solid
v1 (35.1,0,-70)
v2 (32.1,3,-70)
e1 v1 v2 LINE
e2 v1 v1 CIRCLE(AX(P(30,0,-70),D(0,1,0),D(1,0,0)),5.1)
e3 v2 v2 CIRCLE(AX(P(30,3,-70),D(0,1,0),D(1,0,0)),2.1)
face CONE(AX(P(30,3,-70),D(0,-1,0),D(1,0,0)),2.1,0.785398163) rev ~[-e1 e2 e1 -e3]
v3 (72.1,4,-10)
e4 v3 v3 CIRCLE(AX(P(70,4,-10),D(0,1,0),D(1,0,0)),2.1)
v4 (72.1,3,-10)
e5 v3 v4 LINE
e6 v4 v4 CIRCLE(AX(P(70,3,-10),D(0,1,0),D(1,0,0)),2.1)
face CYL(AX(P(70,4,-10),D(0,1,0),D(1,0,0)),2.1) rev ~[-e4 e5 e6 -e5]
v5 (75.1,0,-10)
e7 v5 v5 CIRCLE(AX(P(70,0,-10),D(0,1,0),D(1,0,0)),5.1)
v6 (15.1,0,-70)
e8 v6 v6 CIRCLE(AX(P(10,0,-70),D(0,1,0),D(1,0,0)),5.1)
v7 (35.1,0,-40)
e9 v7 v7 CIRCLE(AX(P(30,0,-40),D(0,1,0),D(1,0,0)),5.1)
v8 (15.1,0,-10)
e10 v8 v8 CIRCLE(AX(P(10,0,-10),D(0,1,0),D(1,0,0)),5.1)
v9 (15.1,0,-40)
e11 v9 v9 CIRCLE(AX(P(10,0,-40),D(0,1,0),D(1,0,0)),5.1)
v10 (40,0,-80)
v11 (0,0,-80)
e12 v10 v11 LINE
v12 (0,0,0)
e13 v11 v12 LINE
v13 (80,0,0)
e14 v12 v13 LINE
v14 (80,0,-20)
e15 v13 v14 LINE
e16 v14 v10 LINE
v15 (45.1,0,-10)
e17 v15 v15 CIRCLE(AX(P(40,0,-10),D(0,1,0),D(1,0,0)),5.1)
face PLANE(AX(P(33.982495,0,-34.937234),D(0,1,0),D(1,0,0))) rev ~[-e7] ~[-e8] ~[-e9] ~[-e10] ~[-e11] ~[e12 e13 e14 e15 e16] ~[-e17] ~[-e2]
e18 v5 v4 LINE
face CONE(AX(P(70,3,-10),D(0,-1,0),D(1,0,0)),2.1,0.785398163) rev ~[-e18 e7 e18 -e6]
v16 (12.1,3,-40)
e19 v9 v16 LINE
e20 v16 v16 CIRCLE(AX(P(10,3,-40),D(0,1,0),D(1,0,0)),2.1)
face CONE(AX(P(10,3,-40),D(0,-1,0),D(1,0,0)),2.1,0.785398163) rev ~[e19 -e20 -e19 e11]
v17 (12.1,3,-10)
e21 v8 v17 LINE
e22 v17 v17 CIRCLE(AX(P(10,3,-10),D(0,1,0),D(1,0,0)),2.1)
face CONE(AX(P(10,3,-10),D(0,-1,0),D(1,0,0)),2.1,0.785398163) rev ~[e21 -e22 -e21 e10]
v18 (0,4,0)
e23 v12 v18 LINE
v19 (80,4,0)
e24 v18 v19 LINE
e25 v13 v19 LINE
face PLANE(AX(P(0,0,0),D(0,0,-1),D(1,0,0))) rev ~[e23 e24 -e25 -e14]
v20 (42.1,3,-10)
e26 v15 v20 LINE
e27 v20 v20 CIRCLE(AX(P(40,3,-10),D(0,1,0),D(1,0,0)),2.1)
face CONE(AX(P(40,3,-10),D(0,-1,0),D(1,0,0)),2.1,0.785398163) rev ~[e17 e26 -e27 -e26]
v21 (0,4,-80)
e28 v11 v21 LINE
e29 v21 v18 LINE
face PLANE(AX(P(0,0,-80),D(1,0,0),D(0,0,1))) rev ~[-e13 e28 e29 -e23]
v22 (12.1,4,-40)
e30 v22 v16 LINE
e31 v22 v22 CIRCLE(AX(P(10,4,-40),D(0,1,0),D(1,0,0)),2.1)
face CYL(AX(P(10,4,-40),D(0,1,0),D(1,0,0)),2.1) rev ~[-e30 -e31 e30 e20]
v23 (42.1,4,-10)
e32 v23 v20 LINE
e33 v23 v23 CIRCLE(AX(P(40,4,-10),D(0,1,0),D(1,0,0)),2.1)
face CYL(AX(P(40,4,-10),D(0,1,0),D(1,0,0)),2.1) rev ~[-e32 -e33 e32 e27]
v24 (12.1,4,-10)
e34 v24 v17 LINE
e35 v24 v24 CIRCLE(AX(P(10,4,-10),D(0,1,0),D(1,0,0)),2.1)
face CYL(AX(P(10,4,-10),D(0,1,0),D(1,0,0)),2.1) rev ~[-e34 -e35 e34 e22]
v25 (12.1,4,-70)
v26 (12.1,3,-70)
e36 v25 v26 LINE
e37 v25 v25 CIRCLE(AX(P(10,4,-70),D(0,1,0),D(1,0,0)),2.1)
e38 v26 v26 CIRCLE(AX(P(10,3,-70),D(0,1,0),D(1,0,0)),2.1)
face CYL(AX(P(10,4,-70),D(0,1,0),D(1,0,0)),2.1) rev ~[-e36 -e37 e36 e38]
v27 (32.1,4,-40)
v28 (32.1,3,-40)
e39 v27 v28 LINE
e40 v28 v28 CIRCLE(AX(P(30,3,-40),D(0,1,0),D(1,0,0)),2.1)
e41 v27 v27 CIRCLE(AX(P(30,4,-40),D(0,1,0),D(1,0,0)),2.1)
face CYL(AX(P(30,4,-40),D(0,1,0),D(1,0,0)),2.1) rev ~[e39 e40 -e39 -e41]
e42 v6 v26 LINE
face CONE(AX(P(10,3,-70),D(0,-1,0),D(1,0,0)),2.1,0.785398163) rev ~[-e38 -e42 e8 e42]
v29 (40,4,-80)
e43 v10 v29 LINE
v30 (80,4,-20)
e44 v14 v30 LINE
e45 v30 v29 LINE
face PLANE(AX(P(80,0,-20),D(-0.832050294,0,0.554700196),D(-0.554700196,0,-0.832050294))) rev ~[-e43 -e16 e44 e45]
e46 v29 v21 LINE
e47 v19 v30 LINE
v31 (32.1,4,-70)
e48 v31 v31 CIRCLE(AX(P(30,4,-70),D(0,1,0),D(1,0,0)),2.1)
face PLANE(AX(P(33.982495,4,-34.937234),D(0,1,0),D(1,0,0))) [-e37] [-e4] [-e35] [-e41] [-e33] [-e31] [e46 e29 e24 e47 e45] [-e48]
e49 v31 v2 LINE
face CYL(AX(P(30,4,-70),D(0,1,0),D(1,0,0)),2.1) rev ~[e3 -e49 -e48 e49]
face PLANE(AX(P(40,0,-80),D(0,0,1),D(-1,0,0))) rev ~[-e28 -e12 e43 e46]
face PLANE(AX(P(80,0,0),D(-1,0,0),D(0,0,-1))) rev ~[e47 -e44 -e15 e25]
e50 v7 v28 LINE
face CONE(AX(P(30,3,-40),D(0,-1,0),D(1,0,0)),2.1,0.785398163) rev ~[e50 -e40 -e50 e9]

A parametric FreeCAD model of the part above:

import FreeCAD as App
import Part
import Sketcher


def edges_at(feature, points):
    """Names of the edges that pass closest to the given points."""
    edges = feature.Shape.Edges
    near = lambda p: min(range(len(edges)), key=lambda i: edges[i].distToShape(Part.Vertex(*p))[0])
    return sorted({f"Edge{near(p) + 1}" for p in points})


def add_polygon(sketch, points):
    """Adds a closed chain of lines whose ends are joined by coincident constraints."""
    first, n = sketch.GeometryCount, len(points)
    for a, b in zip(points, points[1:] + points[:1]):
        sketch.addGeometry(Part.LineSegment(App.Vector(*a, 0), App.Vector(*b, 0)), False)
    for i in range(n):
        sketch.addConstraint(Sketcher.Constraint("Coincident", first + i, 2, first + (i + 1) % n, 1))

doc = App.newDocument("Part")
body = doc.addObject("PartDesign::Body", "Body")

# Sketch on XZ plane
sketch1 = doc.addObject("Sketcher::SketchObject", "Sketch")
body.addObject(sketch1)
sketch1.AttachmentSupport = (doc.XZ_Plane, [""])
sketch1.MapMode = "FlatFace"
add_polygon(sketch1, [(0, 0), (80, 0), (80, -20), (40, -80), (0, -80)])  # lines 0-4
sketch1.addConstraint([
    Sketcher.Constraint("Horizontal", 0),
    Sketcher.Constraint("Vertical", 1),
    Sketcher.Constraint("Horizontal", 3),
    Sketcher.Constraint("Vertical", 4),
    Sketcher.Constraint("Coincident", 4, 2, -1, 1),
    Sketcher.Constraint("Equal", 0, 4),
    Sketcher.Constraint("DistanceX", 0, 1, 0, 2, 80.0),
    Sketcher.Constraint("DistanceX", 3, 2, 3, 1, 40.0),
    Sketcher.Constraint("DistanceY", 1, 2, 1, 1, 20.0),
])
pad1 = doc.addObject("PartDesign::Pad", "Pad")
body.addObject(pad1)
pad1.Profile = sketch1
pad1.Length = 4
pad1.Reversed = True

# Sketch on XZ plane
sketch2 = doc.addObject("Sketcher::SketchObject", "Sketch001")
body.addObject(sketch2)
sketch2.AttachmentSupport = (doc.XZ_Plane, [""])
sketch2.MapMode = "FlatFace"
sketch2.AttachmentOffset = App.Placement(App.Vector(0, 0, -4), App.Rotation())
sketch2.addGeometry([
    Part.Circle(App.Vector(10, -10, 0), App.Vector(0, 0, 1), 2.1),  # 0
    Part.Circle(App.Vector(40, -10, 0), App.Vector(0, 0, 1), 2.1),  # 1
    Part.Circle(App.Vector(70, -10, 0), App.Vector(0, 0, 1), 2.1),  # 2
    Part.Circle(App.Vector(30, -40, 0), App.Vector(0, 0, 1), 2.1),  # 3
    Part.Circle(App.Vector(30, -70, 0), App.Vector(0, 0, 1), 2.1),  # 4
    Part.Circle(App.Vector(10, -40, 0), App.Vector(0, 0, 1), 2.1),  # 5
    Part.Circle(App.Vector(10, -70, 0), App.Vector(0, 0, 1), 2.1),  # 6
], False)
sketch2.addConstraint([
    Sketcher.Constraint("Equal", 0, 1),
    Sketcher.Constraint("Equal", 1, 2),
    Sketcher.Constraint("Equal", 2, 3),
    Sketcher.Constraint("Equal", 3, 4),
    Sketcher.Constraint("Equal", 4, 5),
    Sketcher.Constraint("Equal", 5, 6),
    Sketcher.Constraint("Horizontal", 0, 3, 1, 3),
    Sketcher.Constraint("Horizontal", 1, 3, 2, 3),
    Sketcher.Constraint("Horizontal", 3, 3, 5, 3),
    Sketcher.Constraint("Horizontal", 4, 3, 6, 3),
    Sketcher.Constraint("Vertical", 3, 3, 4, 3),
    Sketcher.Constraint("Vertical", 0, 3, 5, 3),
    Sketcher.Constraint("Vertical", 5, 3, 6, 3),
    Sketcher.Constraint("Diameter", 0, 4.2),
    Sketcher.Constraint("DistanceX", -1, 1, 0, 3, 10.0),
    Sketcher.Constraint("DistanceY", 0, 3, -1, 1, 10.0),
    Sketcher.Constraint("DistanceX", -1, 1, 1, 3, 40.0),
    Sketcher.Constraint("DistanceX", -1, 1, 2, 3, 70.0),
    Sketcher.Constraint("DistanceX", -1, 1, 3, 3, 30.0),
    Sketcher.Constraint("DistanceY", 3, 3, -1, 1, 40.0),
    Sketcher.Constraint("DistanceY", 4, 3, -1, 1, 70.0),
])
pocket1 = doc.addObject("PartDesign::Pocket", "Pocket")
body.addObject(pocket1)
pocket1.Profile = sketch2
pocket1.Length = 4
pocket1.Reversed = True
doc.recompute()

chamfer = doc.addObject("PartDesign::Chamfer", "Chamfer")
body.addObject(chamfer)
chamfer.Base = (pocket1, edges_at(pocket1, [
    (7.9, 0, -70),
    (7.9, 0, -40),
    (27.9, 0, -70),
    (27.9, 0, -40),
    (67.9, 0, -10),
    (37.9, 0, -10),
    (7.9, 0, -10),
]))
chamfer.Size = 3

doc.recompute()
